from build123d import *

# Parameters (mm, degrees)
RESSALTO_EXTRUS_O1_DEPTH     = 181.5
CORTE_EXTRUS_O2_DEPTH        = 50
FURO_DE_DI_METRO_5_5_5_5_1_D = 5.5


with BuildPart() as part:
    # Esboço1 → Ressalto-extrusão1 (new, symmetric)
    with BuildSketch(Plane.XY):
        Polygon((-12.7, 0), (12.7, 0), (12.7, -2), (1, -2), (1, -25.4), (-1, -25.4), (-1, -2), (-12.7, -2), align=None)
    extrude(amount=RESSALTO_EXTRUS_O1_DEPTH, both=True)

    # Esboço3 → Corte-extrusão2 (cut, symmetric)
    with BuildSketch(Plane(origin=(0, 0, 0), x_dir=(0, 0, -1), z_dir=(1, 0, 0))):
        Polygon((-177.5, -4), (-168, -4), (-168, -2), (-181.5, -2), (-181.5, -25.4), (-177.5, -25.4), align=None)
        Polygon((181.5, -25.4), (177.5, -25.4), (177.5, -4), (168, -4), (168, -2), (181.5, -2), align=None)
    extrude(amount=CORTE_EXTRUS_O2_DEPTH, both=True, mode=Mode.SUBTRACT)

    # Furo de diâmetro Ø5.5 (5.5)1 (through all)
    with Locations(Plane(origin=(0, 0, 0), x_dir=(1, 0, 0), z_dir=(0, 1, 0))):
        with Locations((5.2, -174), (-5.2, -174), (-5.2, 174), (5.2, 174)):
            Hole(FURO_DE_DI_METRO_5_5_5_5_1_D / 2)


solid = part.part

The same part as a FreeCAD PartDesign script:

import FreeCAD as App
import Part
import Sketcher
Q = App.Units.Quantity


def add_polygon(sketch, points):
    """Adds a closed chain of lines whose ends are joined by coincident constraints."""
    first, n = sketch.GeometryCount, len(points)
    for a, b in zip(points, points[1:] + points[:1]):
        sketch.addGeometry(Part.LineSegment(App.Vector(*a, 0), App.Vector(*b, 0)), False)
    for i in range(n):
        sketch.addConstraint(Sketcher.Constraint("Coincident", first + i, 2, first + (i + 1) % n, 1))

doc = App.newDocument("Part")
body = doc.addObject("PartDesign::Body", "Body")

sketch1 = body.newObject("Sketcher::SketchObject", "Sketch")
sketch1.AttachmentSupport = (doc.getObject("XY_Plane"), [""])
sketch1.MapMode = "FlatFace"
add_polygon(sketch1, [(12.7, 0), (-12.7, 0), (-12.7, -2), (-1, -2), (-1, -25.4), (1, -25.4), (1, -2), (12.7, -2)])
sketch1.addConstraint(Sketcher.Constraint("Horizontal", 0))
sketch1.addConstraint(Sketcher.Constraint("Vertical", 1))
sketch1.addConstraint(Sketcher.Constraint("Horizontal", 2))
sketch1.addConstraint(Sketcher.Constraint("Vertical", 3))
sketch1.addConstraint(Sketcher.Constraint("Horizontal", 4))
sketch1.addConstraint(Sketcher.Constraint("Vertical", 5))
sketch1.addConstraint(Sketcher.Constraint("Horizontal", 6))
sketch1.addConstraint(Sketcher.Constraint("Vertical", 7))
sketch1.addConstraint(Sketcher.Constraint("Symmetric", 0, 2, 7, 2, -1, 1))
sketch1.addConstraint(Sketcher.Constraint("Symmetric", 2, 2, 5, 2, -2))
sketch1.addConstraint(Sketcher.Constraint("Equal", 4, 1))
sketch1.addConstraint(Sketcher.Constraint("DistanceX", 4, 1, 4, 2, Q("2 mm")))
sketch1.addConstraint(Sketcher.Constraint("DistanceX", 0, 2, 0, 1, Q("25.4 mm")))
sketch1.addConstraint(Sketcher.Constraint("DistanceY", 3, 2, 3, 1, Q("23.4 mm")))
pad1 = body.newObject("PartDesign::Pad", "Pad")
pad1.Profile = sketch1
pad1.Length = 363
pad1.Midplane = True

sketch2 = body.newObject("Sketcher::SketchObject", "Sketch001")
sketch2.AttachmentSupport = (doc.getObject("YZ_Plane"), [""])
sketch2.MapMode = "FlatFace"
add_polygon(sketch2, [(-4, 177.5), (-4, 168), (-2, 168), (-2, 181.5), (-25.4, 181.5), (-25.4, 177.5)])
add_polygon(sketch2, [(-25.4, -177.5), (-25.4, -181.5), (-2, -181.5), (-2, -168), (-4, -168), (-4, -177.5)])
sketch2.addConstraint(Sketcher.Constraint("Vertical", 0))
sketch2.addConstraint(Sketcher.Constraint("Horizontal", 1))
sketch2.addConstraint(Sketcher.Constraint("Vertical", 2))
sketch2.addConstraint(Sketcher.Constraint("Horizontal", 3))
sketch2.addConstraint(Sketcher.Constraint("Vertical", 4))
sketch2.addConstraint(Sketcher.Constraint("Horizontal", 5))
sketch2.addConstraint(Sketcher.Constraint("Vertical", 6))
sketch2.addConstraint(Sketcher.Constraint("Horizontal", 7))
sketch2.addConstraint(Sketcher.Constraint("Vertical", 8))
sketch2.addConstraint(Sketcher.Constraint("Horizontal", 9))
sketch2.addConstraint(Sketcher.Constraint("Vertical", 10))
sketch2.addConstraint(Sketcher.Constraint("Horizontal", 11))
sketch2.addConstraint(Sketcher.Constraint("Symmetric", 3, 2, 6, 2, -1))
sketch2.addConstraint(Sketcher.Constraint("Symmetric", 1, 2, 8, 2, -1))
sketch2.addConstraint(Sketcher.Constraint("Symmetric", 5, 2, 10, 2, -1))
sketch2.addConstraint(Sketcher.Constraint("DistanceX", 1, 1, 1, 2, Q("2 mm")))
sketch2.addConstraint(Sketcher.Constraint("DistanceY", 4, 2, 4, 1, Q("4 mm")))
sketch2.addConstraint(Sketcher.Constraint("DistanceX", 3, 2, 3, 1, Q("23.4 mm")))
sketch2.addConstraint(Sketcher.Constraint("DistanceY", 0, 2, 0, 1, Q("9.5 mm")))
sketch2.addConstraint(Sketcher.Constraint("DistanceX", 0, 2, -1, 1, Q("4 mm")))
sketch2.addConstraint(Sketcher.Constraint("DistanceY", -1, 1, 0, 2, Q("168 mm")))
pocket1 = body.newObject("PartDesign::Pocket", "Pocket")
pocket1.Profile = sketch2
pocket1.Length = 100
pocket1.Midplane = True

sketch3 = body.newObject("Sketcher::SketchObject", "Sketch002")
sketch3.AttachmentSupport = (doc.getObject("XZ_Plane"), [""])
sketch3.MapMode = "FlatFace"
sketch3.addGeometry(Part.Circle(App.Vector(5.2, 174, 0), App.Vector(0, 0, 1), 2.8), False)
sketch3.addGeometry(Part.Circle(App.Vector(-5.2, 174, 0), App.Vector(0, 0, 1), 2.8), False)
sketch3.addGeometry(Part.Circle(App.Vector(-5.2, -174, 0), App.Vector(0, 0, 1), 2.8), False)
sketch3.addGeometry(Part.Circle(App.Vector(5.2, -174, 0), App.Vector(0, 0, 1), 2.8), False)
sketch3.addConstraint(Sketcher.Constraint("Equal", 0, 1))
sketch3.addConstraint(Sketcher.Constraint("Equal", 1, 2))
sketch3.addConstraint(Sketcher.Constraint("Equal", 2, 3))
sketch3.addConstraint(Sketcher.Constraint("Symmetric", 0, 3, 2, 3, -1, 1))
sketch3.addConstraint(Sketcher.Constraint("Symmetric", 1, 3, 3, 3, -1, 1))
sketch3.addConstraint(Sketcher.Constraint("Symmetric", 0, 3, 1, 3, -2))
sketch3.addConstraint(Sketcher.Constraint("Diameter", 0, Q("5.5 mm")))
sketch3.addConstraint(Sketcher.Constraint("DistanceY", -1, 1, 0, 3, Q("174 mm")))
sketch3.addConstraint(Sketcher.Constraint("DistanceX", -1, 1, 0, 3, Q("5.2 mm")))
doc.recompute()
hole = body.newObject("PartDesign::Hole", "Hole")
hole.Profile = sketch3
hole.ThreadType = "None"
hole.Diameter = 5.5
hole.DepthType = "ThroughAll"
hole.Reversed = True

doc.recompute()
